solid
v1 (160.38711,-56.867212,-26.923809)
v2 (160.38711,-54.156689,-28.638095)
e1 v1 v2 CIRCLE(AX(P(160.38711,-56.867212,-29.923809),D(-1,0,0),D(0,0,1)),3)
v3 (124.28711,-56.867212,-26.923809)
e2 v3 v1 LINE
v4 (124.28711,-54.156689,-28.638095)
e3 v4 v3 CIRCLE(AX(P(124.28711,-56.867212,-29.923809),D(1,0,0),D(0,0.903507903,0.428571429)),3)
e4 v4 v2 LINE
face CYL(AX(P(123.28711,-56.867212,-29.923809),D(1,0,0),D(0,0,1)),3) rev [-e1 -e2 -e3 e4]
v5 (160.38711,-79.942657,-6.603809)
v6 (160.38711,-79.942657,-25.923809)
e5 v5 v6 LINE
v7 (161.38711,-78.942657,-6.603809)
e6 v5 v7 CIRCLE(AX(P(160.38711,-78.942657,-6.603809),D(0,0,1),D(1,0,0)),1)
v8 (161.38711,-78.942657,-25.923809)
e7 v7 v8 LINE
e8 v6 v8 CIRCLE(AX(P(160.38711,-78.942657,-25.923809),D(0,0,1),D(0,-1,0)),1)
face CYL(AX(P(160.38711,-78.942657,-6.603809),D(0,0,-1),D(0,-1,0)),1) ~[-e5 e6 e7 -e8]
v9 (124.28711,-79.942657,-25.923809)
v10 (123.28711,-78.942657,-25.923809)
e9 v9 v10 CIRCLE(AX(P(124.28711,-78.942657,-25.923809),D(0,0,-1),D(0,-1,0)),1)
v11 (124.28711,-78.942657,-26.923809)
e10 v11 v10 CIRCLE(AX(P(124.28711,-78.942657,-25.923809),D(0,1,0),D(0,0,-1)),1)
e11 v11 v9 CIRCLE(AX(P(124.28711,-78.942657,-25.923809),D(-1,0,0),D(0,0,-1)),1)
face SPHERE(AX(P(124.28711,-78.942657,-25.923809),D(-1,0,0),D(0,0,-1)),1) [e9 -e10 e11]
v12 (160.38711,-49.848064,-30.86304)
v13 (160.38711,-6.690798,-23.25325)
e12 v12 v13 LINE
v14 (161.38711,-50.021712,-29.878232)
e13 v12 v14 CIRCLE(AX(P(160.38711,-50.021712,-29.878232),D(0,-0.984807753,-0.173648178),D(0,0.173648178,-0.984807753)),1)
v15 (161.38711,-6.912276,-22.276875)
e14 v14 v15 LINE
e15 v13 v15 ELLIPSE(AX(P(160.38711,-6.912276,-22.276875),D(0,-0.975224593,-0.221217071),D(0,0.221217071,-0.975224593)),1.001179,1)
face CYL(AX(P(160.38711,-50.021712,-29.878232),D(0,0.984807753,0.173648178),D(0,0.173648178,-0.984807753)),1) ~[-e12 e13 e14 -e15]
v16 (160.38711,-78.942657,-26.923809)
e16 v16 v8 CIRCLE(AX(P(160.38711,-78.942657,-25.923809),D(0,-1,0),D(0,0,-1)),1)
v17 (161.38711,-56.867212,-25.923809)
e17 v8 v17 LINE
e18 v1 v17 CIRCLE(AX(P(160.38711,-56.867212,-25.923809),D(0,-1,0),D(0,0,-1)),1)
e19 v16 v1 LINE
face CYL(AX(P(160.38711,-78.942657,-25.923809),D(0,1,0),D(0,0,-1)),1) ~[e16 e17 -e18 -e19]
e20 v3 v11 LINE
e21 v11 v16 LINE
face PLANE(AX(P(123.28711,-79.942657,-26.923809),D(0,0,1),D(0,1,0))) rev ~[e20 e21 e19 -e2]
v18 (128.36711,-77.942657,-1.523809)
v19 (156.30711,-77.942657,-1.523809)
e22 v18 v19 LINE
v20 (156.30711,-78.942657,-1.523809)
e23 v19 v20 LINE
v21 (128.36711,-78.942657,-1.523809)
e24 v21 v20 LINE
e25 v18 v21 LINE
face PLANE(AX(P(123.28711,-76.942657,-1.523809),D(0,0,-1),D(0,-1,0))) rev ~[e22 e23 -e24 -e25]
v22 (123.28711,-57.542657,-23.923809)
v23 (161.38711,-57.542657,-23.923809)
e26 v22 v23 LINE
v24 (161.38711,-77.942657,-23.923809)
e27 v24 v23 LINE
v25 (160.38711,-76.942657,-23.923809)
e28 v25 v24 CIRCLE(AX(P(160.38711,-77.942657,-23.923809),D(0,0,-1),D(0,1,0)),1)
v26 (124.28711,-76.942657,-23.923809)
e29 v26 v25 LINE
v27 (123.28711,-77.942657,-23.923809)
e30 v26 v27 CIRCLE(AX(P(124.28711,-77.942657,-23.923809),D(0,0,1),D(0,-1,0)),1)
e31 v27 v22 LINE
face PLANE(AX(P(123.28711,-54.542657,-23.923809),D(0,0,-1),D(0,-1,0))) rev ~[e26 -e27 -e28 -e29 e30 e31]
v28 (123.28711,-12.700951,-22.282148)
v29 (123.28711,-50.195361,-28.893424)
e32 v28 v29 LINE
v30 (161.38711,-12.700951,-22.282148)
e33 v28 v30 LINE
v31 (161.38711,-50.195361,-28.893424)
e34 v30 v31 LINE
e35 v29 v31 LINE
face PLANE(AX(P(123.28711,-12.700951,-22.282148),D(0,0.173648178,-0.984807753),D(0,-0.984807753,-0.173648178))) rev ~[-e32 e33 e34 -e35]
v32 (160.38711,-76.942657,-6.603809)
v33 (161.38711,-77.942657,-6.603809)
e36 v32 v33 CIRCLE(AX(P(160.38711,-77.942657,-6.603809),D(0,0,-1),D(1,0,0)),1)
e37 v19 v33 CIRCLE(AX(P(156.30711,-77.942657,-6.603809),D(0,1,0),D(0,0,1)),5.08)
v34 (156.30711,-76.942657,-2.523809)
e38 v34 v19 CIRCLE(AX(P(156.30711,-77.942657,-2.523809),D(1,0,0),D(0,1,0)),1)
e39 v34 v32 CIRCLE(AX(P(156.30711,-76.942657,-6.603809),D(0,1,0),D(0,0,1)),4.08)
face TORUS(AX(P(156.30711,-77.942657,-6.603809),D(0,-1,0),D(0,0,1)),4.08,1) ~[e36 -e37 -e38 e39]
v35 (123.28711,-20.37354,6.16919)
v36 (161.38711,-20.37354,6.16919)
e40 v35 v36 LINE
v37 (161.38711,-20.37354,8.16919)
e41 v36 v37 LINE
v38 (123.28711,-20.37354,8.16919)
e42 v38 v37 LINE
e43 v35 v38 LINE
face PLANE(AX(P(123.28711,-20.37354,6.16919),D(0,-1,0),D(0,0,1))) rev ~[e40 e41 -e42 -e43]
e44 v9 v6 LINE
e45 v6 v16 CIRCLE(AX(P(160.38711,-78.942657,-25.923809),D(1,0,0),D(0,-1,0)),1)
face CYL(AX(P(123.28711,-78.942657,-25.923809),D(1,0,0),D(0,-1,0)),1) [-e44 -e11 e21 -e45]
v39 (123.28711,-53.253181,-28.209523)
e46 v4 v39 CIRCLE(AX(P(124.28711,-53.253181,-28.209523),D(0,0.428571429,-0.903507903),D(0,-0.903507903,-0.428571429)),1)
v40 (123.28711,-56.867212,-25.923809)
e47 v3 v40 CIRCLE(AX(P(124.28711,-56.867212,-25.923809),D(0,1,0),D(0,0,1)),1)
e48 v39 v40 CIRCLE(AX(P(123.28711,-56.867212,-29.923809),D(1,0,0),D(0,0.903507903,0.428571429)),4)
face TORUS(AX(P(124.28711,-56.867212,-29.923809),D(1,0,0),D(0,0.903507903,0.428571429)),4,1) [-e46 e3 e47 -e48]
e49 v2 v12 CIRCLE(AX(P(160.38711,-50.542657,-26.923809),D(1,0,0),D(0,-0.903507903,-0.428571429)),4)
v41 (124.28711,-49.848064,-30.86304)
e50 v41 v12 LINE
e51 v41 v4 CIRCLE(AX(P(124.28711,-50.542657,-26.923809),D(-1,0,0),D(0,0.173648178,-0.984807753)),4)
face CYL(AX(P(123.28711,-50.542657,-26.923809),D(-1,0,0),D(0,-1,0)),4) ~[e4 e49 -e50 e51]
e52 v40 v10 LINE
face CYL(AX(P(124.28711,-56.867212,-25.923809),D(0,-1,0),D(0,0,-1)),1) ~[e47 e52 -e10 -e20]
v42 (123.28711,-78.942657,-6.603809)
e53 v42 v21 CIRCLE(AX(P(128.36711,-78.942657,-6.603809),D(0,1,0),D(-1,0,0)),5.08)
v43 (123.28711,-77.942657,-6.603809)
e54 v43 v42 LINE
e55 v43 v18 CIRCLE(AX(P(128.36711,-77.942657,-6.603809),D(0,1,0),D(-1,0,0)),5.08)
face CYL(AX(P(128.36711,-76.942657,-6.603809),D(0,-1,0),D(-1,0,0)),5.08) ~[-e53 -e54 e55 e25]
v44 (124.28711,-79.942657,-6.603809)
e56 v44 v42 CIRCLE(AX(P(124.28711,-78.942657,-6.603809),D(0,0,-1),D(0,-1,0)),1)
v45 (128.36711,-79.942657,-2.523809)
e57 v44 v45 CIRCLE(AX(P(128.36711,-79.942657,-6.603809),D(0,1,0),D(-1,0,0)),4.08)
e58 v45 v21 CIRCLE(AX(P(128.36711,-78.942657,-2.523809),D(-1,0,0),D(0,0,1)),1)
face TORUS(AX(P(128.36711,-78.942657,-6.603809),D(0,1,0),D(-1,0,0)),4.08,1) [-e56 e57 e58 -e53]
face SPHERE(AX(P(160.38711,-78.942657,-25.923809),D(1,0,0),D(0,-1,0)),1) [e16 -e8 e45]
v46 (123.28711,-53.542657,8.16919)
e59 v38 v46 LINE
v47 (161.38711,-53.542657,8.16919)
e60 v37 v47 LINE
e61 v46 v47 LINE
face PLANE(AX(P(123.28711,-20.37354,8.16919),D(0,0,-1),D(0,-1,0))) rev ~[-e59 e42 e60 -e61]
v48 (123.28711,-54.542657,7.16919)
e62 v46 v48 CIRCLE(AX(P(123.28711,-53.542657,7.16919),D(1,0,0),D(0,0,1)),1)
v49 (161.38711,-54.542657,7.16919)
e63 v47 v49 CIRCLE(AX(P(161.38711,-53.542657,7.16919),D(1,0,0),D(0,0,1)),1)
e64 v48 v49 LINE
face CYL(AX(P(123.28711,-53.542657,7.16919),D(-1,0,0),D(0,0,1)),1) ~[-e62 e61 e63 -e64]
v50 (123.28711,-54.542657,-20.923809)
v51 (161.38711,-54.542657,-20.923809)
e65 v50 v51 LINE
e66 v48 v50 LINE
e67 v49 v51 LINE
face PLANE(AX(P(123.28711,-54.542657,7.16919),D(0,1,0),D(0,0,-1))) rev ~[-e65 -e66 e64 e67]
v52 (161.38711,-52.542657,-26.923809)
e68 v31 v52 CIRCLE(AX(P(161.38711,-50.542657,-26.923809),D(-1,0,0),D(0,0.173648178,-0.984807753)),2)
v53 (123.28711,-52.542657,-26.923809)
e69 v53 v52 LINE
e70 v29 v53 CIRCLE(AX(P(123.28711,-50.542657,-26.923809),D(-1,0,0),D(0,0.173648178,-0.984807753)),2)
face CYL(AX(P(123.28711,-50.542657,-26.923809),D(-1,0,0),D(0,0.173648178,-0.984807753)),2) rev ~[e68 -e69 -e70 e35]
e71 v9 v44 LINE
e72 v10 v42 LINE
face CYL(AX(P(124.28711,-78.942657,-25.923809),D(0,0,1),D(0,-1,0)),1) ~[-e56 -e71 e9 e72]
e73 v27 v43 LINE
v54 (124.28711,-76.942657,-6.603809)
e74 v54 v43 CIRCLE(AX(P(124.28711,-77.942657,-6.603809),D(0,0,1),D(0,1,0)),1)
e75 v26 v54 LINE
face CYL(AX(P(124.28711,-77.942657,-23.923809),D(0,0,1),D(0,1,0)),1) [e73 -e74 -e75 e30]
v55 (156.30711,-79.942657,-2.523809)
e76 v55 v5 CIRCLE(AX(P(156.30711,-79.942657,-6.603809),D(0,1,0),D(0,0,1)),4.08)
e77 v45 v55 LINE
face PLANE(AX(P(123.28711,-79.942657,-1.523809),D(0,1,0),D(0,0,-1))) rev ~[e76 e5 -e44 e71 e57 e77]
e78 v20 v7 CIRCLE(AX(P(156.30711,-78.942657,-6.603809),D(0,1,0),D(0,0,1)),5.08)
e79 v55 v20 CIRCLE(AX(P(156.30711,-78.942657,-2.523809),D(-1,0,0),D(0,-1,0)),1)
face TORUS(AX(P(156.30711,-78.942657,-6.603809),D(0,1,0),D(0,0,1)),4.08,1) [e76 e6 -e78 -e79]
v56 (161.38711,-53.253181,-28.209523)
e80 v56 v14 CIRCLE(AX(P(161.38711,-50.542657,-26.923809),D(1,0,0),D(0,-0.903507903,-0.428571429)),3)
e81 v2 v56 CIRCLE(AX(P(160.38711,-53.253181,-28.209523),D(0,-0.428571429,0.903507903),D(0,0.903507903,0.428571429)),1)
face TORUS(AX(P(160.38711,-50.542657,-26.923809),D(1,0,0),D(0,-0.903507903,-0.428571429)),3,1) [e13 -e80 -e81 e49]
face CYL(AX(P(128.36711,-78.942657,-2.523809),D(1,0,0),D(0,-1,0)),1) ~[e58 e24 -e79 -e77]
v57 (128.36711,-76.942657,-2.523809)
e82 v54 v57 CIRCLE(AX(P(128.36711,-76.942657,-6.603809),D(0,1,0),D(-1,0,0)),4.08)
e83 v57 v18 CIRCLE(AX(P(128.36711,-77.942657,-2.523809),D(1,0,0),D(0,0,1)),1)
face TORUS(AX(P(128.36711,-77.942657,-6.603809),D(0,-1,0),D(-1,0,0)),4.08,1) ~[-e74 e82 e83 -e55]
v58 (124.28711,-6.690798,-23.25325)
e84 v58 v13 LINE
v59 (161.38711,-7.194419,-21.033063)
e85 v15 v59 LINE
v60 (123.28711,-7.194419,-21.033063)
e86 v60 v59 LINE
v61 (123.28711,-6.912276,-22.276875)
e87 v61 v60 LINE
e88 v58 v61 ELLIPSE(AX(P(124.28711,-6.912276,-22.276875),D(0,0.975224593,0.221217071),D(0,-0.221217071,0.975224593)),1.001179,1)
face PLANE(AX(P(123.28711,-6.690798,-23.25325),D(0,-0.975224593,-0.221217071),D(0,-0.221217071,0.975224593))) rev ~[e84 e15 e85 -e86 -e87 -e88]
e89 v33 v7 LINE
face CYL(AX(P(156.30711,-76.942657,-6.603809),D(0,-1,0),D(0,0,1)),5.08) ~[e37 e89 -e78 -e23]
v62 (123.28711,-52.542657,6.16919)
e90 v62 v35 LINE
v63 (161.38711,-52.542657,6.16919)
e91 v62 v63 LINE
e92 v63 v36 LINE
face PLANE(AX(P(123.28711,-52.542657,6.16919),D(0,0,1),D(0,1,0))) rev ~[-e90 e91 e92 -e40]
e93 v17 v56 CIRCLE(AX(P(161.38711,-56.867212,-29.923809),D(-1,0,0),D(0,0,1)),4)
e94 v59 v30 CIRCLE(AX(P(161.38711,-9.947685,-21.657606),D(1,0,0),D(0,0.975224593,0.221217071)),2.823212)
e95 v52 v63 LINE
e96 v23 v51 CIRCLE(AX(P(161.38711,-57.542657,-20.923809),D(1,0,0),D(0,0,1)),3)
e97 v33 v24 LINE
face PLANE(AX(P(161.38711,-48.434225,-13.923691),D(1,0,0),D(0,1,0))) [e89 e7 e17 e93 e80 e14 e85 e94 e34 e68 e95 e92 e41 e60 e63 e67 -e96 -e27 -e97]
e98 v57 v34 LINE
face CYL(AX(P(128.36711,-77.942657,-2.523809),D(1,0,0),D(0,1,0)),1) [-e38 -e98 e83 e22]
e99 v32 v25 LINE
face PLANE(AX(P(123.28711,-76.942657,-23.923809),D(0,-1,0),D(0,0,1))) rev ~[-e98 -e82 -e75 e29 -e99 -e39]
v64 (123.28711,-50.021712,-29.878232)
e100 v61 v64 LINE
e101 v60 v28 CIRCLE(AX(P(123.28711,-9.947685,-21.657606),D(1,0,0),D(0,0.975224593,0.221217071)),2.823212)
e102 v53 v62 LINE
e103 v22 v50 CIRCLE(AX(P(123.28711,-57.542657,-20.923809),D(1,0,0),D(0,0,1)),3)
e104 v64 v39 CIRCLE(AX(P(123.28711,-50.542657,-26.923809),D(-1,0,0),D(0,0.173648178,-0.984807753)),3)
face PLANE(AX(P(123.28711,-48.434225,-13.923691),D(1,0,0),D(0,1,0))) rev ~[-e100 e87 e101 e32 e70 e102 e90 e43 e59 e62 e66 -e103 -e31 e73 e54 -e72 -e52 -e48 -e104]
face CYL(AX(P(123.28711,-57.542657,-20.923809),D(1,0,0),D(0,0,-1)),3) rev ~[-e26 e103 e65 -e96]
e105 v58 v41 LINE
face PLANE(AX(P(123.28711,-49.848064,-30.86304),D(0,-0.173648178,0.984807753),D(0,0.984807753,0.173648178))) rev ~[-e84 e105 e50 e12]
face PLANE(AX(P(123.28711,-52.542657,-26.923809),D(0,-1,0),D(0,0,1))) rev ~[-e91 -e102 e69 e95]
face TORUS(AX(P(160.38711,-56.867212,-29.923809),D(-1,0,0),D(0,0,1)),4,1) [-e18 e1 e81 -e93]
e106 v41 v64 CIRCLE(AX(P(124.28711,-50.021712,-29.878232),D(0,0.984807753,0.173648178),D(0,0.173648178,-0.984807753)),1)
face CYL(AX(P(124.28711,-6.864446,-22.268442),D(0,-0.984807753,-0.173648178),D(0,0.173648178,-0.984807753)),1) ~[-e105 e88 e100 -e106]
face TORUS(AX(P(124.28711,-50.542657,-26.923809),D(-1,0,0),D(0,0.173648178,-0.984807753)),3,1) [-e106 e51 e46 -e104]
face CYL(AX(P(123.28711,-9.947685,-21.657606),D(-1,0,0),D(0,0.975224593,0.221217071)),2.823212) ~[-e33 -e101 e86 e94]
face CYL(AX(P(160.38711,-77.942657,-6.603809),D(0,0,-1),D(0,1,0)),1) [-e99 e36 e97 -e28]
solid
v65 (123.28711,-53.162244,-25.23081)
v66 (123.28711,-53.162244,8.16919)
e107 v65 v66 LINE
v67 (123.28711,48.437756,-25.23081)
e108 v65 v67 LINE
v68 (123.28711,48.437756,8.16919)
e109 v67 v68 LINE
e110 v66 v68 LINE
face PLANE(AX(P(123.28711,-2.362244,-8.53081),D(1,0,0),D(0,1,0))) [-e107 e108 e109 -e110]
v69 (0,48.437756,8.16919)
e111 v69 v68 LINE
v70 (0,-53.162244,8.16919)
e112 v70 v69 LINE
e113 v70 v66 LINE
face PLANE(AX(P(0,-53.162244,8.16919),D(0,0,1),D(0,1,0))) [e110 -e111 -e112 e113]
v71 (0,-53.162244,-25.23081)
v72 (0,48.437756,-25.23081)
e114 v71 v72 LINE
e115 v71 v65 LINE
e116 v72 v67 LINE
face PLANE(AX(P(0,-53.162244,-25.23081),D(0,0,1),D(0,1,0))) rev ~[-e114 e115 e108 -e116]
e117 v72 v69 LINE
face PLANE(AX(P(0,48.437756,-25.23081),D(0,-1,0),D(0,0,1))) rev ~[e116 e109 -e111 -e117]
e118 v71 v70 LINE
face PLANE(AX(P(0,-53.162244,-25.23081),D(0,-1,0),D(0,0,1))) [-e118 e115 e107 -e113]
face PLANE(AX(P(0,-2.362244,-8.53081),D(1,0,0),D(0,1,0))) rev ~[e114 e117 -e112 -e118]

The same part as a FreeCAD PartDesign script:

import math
import FreeCAD as App
import Part
import Sketcher

V = App.Vector
Q = App.Units.Quantity


def edges_at(feature, points):
    """Names of the edges that pass closest to the given points."""
    edges = feature.Shape.Edges
    near = lambda p: min(range(len(edges)), key=lambda i: edges[i].distToShape(Part.Vertex(*p))[0])
    return sorted({f"Edge{near(p) + 1}" for p in points})


def add_polygon(sketch, points):
    """Adds a closed chain of lines whose ends are joined by coincident constraints."""
    first, n = sketch.GeometryCount, len(points)
    for a, b in zip(points, points[1:] + points[:1]):
        sketch.addGeometry(Part.LineSegment(App.Vector(*a, 0), App.Vector(*b, 0)), False)
    for i in range(n):
        sketch.addConstraint(Sketcher.Constraint("Coincident", first + i, 2, first + (i + 1) % n, 1))

doc = App.newDocument("Part")
body = doc.addObject("PartDesign::Body", "Body")

# Sketch on YZ plane
sketch1 = body.newObject("Sketcher::SketchObject", "Sketch")
sketch1.AttachmentSupport = (doc.getObject("YZ_Plane"), [""])
sketch1.MapMode = "FlatFace"
add_polygon(sketch1, [(-53.162244, 8.16919), (-53.162244, -25.23081), (48.437756, -25.23081), (48.437756, 8.16919)])  # lines 0-3
sketch1.addConstraint([
    Sketcher.Constraint("Vertical", 0),
    Sketcher.Constraint("Horizontal", 1),
    Sketcher.Constraint("Vertical", 2),
    Sketcher.Constraint("Horizontal", 3),
    Sketcher.Constraint("DistanceX", 1, 1, 1, 2, Q("101.6 mm")),
    Sketcher.Constraint("DistanceY", 0, 2, 0, 1, Q("33.4 mm")),
    Sketcher.Constraint("DistanceY", 0, 2, -1, 1, Q("25.23081 mm")),
    Sketcher.Constraint("DistanceX", 0, 2, -1, 1, Q("53.162244 mm")),
])
pad1 = body.newObject("PartDesign::Pad", "Pad")
pad1.Profile = sketch1
pad1.Length = 123.28711
body2 = doc.addObject("PartDesign::Body", "Body001")

# Sketch on YZ plane
sketch2 = body2.newObject("Sketcher::SketchObject", "Sketch001")
sketch2.AttachmentSupport = (doc.getObject("YZ_Plane001"), [""])
sketch2.MapMode = "FlatFace"
sketch2.AttachmentOffset = App.Placement(V(0, 0, 123.28711), App.Rotation())
sketch2.addGeometry([
    Part.LineSegment(V(-20.37354, 6.16919, 0), V(-20.37354, 8.16919, 0)),  # 0
    Part.LineSegment(V(-20.37354, 8.16919, 0), V(-53.542657, 8.16919, 0)),  # 1
    Part.ArcOfCircle(Part.Circle(V(-53.542657, 7.16919, 0), V(0, 0, 1), 1), math.radians(90), math.radians(180)),  # 2
    Part.LineSegment(V(-54.542657, 7.16919, 0), V(-54.542657, -23.923809, 0)),  # 3
    Part.LineSegment(V(-54.542657, -23.923809, 0), V(-76.942657, -23.923809, 0)),  # 4
    Part.LineSegment(V(-76.942657, -23.923809, 0), V(-76.942657, -1.523809, 0)),  # 5
    Part.LineSegment(V(-76.942657, -1.523809, 0), V(-79.942657, -1.523809, 0)),  # 6
    Part.LineSegment(V(-79.942657, -1.523809, 0), V(-79.942657, -26.923809, 0)),  # 7
    Part.LineSegment(V(-79.942657, -26.923809, 0), V(-54.542657, -26.923809, 0)),  # 8
    Part.ArcOfCircle(Part.Circle(V(-50.542657, -26.923809, 0), V(0, 0, 1), 4), math.radians(180), math.radians(280)),  # 9
    Part.LineSegment(V(-49.848064, -30.86304, 0), V(-6.690798, -23.25325, 0)),  # 10
    Part.LineSegment(V(-6.690798, -23.25325, 0), V(-7.194419, -21.033063, 0)),  # 11
    Part.ArcOfCircle(Part.Circle(V(-9.947685, -21.657606, 0), V(0, 0, 1), 2.823212), math.radians(12.780527), math.radians(192.780527)),  # 12
    Part.LineSegment(V(-12.700951, -22.282148, 0), V(-50.195361, -28.893424, 0)),  # 13
    Part.ArcOfCircle(Part.Circle(V(-50.542657, -26.923809, 0), V(0, 0, 1), 2), math.radians(180), math.radians(280)),  # 14
    Part.LineSegment(V(-52.542657, -26.923809, 0), V(-52.542657, 6.16919, 0)),  # 15
    Part.LineSegment(V(-52.542657, 6.16919, 0), V(-20.37354, 6.16919, 0)),  # 16
], False)
sketch2.addConstraint([
    Sketcher.Constraint("Coincident", 0, 2, 1, 1),
    Sketcher.Constraint("Tangent", 1, 2, 2, 1),
    Sketcher.Constraint("Tangent", 2, 2, 3, 1),
    Sketcher.Constraint("Coincident", 3, 2, 4, 1),
    Sketcher.Constraint("Coincident", 4, 2, 5, 1),
    Sketcher.Constraint("Coincident", 5, 2, 6, 1),
    Sketcher.Constraint("Coincident", 6, 2, 7, 1),
    Sketcher.Constraint("Coincident", 7, 2, 8, 1),
    Sketcher.Constraint("Coincident", 8, 2, 9, 1),
    Sketcher.Constraint("Tangent", 9, 2, 10, 1),
    Sketcher.Constraint("Coincident", 10, 2, 11, 1),
    Sketcher.Constraint("Tangent", 11, 2, 12, 1),
    Sketcher.Constraint("Coincident", 12, 2, 13, 1),
    Sketcher.Constraint("Tangent", 13, 2, 14, 2),
    Sketcher.Constraint("Tangent", 14, 1, 15, 1),
    Sketcher.Constraint("Coincident", 15, 2, 16, 1),
    Sketcher.Constraint("Coincident", 16, 2, 0, 1),
    Sketcher.Constraint("Vertical", 0),
    Sketcher.Constraint("Horizontal", 1),
    Sketcher.Constraint("Vertical", 3),
    Sketcher.Constraint("Horizontal", 4),
    Sketcher.Constraint("Vertical", 5),
    Sketcher.Constraint("Horizontal", 6),
    Sketcher.Constraint("Vertical", 7),
    Sketcher.Constraint("Horizontal", 8),
    Sketcher.Constraint("Vertical", 15),
    Sketcher.Constraint("Horizontal", 16),
    Sketcher.Constraint("Coincident", 14, 3, 9, 3),
    Sketcher.Constraint("Parallel", 10, 13),
    Sketcher.Constraint("Horizontal", 14, 3, 7, 2),
    Sketcher.Constraint("Vertical", 3, 2, 8, 2),
    Sketcher.Constraint("Equal", 4, 5),
    Sketcher.Constraint("Equal", 8, 7),
    Sketcher.Constraint("Radius", 2, Q("1 mm")),
    Sketcher.Constraint("Radius", 9, Q("4 mm")),
    Sketcher.Constraint("Radius", 14, Q("2 mm")),
    Sketcher.Constraint("DistanceX", 6, 2, 6, 1, Q("3 mm")),
    Sketcher.Constraint("DistanceY", 0, 1, 0, 2, Q("2 mm")),
    Sketcher.Constraint("Angle", 10, Q("10 deg")),
    Sketcher.Constraint("DistanceX", 4, 2, 4, 1, Q("22.4 mm")),
    Sketcher.Constraint("DistanceY", 3, 2, 3, 1, Q("31.092999 mm")),
    Sketcher.Constraint("Radius", 12, Q("2.823212 mm")),
    Sketcher.Constraint("DistanceX", 10, 2, -1, 1, Q("6.690798 mm")),
    Sketcher.Constraint("DistanceY", 10, 2, 12, 2, Q("0.971101 mm")),
    Sketcher.Constraint("Distance", 11, Q("2.27659 mm")),
    Sketcher.Constraint("Distance", 13, Q("38.072821 mm")),
    Sketcher.Constraint("DistanceX", 1, 2, 1, 1, Q("33.169117 mm")),
    Sketcher.Constraint("DistanceY", -1, 1, 2, 3, Q("7.16919 mm")),
])
pad2 = body2.newObject("PartDesign::Pad", "Pad001")
pad2.Profile = sketch2
pad2.Length = 38.1
doc.recompute()

fillet = body2.newObject("PartDesign::Fillet", "Fillet")
fillet.Base = (pad2, edges_at(pad2, [(142.337, -79.943, -26.924)]))
fillet.Radius = 1
doc.recompute()

fillet2 = body2.newObject("PartDesign::Fillet", "Fillet001")
fillet2.Base = (fillet, edges_at(fillet, [(142.337, -54.543, -23.924), (142.337, -54.543, -26.924)]))
fillet2.Radius = 3
doc.recompute()

fillet3 = body2.newObject("PartDesign::Fillet", "Fillet002")
fillet3.Base = (fillet2, edges_at(fillet2, [(123.287, -78.443, -1.524), (161.387, -78.443, -1.524)]))
fillet3.Radius = 5.08
doc.recompute()

fillet4 = body2.newObject("PartDesign::Fillet", "Fillet003")
fillet4.Base = (fillet3, edges_at(fillet3, [
    (159.899, -76.943, -3.012),
    (161.387, -78.443, -6.604),
    (156.307, -78.443, -1.524),
    (159.899, -79.943, -3.012),
    (142.337, -76.943, -1.524),
    (128.367, -78.443, -1.524),
    (142.337, -79.943, -1.524),
    (124.775, -76.943, -3.012),
    (123.287, -78.443, -6.604),
    (124.775, -79.943, -3.012),
]))
fillet4.Radius = 1

doc.recompute()
